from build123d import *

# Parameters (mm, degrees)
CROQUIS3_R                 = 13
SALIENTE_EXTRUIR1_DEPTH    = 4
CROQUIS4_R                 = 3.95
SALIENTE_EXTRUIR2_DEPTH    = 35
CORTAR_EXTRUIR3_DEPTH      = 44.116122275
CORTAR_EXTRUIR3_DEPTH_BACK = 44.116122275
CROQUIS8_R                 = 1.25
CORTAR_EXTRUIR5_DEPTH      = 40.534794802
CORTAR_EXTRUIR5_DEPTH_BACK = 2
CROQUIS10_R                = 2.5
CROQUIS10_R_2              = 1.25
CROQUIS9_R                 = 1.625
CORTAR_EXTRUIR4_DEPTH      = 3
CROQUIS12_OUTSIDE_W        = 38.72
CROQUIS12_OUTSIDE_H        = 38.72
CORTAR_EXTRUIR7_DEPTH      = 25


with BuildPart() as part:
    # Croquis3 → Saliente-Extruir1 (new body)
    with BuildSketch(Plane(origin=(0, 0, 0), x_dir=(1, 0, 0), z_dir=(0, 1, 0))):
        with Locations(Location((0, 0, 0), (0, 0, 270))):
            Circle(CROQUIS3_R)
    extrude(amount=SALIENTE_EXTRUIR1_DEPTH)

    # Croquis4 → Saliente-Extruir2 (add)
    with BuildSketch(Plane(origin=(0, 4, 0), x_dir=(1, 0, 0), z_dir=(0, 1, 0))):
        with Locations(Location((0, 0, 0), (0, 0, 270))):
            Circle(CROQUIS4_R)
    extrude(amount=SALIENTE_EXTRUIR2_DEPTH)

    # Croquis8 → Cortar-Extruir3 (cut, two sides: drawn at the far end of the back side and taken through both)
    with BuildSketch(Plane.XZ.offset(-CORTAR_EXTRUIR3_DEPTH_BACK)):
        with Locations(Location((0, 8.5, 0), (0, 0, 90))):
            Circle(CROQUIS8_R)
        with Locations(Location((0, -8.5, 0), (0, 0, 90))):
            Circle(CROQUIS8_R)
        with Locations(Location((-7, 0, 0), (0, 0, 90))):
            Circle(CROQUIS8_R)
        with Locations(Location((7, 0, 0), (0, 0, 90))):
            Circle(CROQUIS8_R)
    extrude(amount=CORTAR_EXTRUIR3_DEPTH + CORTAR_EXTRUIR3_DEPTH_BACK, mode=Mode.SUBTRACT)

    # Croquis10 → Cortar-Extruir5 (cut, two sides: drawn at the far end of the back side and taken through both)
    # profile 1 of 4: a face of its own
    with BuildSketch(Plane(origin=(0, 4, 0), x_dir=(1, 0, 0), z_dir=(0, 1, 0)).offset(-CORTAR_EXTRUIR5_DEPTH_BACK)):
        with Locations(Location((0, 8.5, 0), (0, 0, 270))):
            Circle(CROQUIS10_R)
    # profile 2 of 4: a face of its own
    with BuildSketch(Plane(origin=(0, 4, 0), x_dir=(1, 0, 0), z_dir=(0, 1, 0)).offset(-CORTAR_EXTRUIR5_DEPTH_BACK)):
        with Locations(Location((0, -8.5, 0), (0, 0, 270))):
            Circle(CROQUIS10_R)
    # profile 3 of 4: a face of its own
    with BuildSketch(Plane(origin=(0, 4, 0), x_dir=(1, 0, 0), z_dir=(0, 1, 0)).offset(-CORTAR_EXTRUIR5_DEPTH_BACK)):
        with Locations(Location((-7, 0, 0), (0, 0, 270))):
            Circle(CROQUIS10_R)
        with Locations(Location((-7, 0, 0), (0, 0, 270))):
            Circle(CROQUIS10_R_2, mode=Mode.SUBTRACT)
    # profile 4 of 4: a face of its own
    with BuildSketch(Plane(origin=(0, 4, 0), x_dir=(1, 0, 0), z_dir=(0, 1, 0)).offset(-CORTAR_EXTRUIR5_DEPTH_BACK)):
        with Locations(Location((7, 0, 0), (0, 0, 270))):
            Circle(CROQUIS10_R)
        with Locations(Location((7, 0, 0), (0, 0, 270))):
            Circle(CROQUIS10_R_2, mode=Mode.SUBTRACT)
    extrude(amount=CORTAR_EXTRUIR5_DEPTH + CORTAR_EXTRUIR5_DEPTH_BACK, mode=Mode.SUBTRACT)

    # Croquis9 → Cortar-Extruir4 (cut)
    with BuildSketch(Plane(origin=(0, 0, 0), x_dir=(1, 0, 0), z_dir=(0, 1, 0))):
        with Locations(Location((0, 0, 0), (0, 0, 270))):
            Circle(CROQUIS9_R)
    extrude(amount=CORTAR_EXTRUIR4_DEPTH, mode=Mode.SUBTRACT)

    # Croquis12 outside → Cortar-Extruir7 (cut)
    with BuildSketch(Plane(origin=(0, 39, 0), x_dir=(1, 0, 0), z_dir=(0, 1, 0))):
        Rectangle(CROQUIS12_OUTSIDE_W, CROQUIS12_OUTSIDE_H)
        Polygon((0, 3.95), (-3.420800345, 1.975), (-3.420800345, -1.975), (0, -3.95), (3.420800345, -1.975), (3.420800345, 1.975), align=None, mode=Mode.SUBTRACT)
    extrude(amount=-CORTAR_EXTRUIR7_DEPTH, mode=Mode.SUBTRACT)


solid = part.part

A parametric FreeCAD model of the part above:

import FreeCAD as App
import Part
import Sketcher
from FreeCAD import Vector
Q = App.Units.Quantity


def add_polygon(sketch, points):
    """Adds a closed chain of lines whose ends are joined by coincident constraints."""
    first, n = sketch.GeometryCount, len(points)
    for a, b in zip(points, points[1:] + points[:1]):
        sketch.addGeometry(Part.LineSegment(App.Vector(*a, 0), App.Vector(*b, 0)), False)
    for i in range(n):
        sketch.addConstraint(Sketcher.Constraint("Coincident", first + i, 2, first + (i + 1) % n, 1))

doc = App.newDocument("Part")
params = doc.addObject("Spreadsheet::Sheet", "Params")
for row, (alias, value) in enumerate([
    ("sketch1_diameter", "26 mm"),
    ("pad1_length", "4 mm"),
    ("sketch2_diameter", "7.9 mm"),
    ("pad2_length", "35 mm"),
    ("sketch3_diameter", "2.5 mm"),
    ("sketch4_diameter", "5 mm"),
    ("sketch4_diameter2", "2.5 mm"),
    ("pocket2_length", "40.534795 mm"),
    ("pocket2_length2", "2 mm"),
    ("sketch5_diameter", "3.25 mm"),
    ("pocket3_length", "3 mm"),
    ("sketch6_width", "38.72 mm"),
    ("sketch6_height", "3.95 mm"),
    ("pocket4_length", "25 mm"),
], start=1):
    params.set(f"A{row}", alias)
    params.set(f"B{row}", "=" + value)
    params.setAlias(f"B{row}", alias)

body = doc.addObject("PartDesign::Body", "Body")

# Sketch on XZ plane
sketch1 = body.newObject("Sketcher::SketchObject", "Sketch")
sketch1.AttachmentSupport = (doc.getObject("XZ_Plane"), [""])
sketch1.MapMode = "FlatFace"
sketch1.addGeometry(Part.Circle(Vector(0, 0, 0), Vector(0, 0, 1), 13), False)
sketch1.addConstraint(Sketcher.Constraint("Coincident", 0, 3, -1, 1))
sketch1.addConstraint(Sketcher.Constraint("Diameter", 0, Q("26 mm")))
sketch1.setExpression("Constraints[1]", "Params.sketch1_diameter")
pad1 = body.newObject("PartDesign::Pad", "Pad")
pad1.Profile = sketch1
pad1.setExpression("Length", "Params.pad1_length")
pad1.Reversed = True

# Sketch on XZ plane
sketch2 = body.newObject("Sketcher::SketchObject", "Sketch001")
sketch2.AttachmentSupport = (doc.getObject("XZ_Plane"), [""])
sketch2.MapMode = "FlatFace"
sketch2.AttachmentOffset = App.Placement(Vector(0, 0, -4), App.Rotation())
sketch2.addGeometry(Part.Circle(Vector(0, 0, 0), Vector(0, 0, 1), 4), False)
sketch2.addConstraint(Sketcher.Constraint("Coincident", 0, 3, -1, 1))
sketch2.addConstraint(Sketcher.Constraint("Diameter", 0, Q("7.9 mm")))
sketch2.setExpression("Constraints[1]", "Params.sketch2_diameter")
pad2 = body.newObject("PartDesign::Pad", "Pad001")
pad2.Profile = sketch2
pad2.setExpression("Length", "Params.pad2_length")
pad2.Reversed = True

# Sketch on XZ plane
sketch3 = body.newObject("Sketcher::SketchObject", "Sketch002")
sketch3.AttachmentSupport = (doc.getObject("XZ_Plane"), [""])
sketch3.MapMode = "FlatFace"
sketch3.addGeometry(Part.Circle(Vector(0, 8.5, 0), Vector(0, 0, 1), 1.2), False)
sketch3.addGeometry(Part.Circle(Vector(0, -8.5, 0), Vector(0, 0, 1), 1.2), False)
sketch3.addGeometry(Part.Circle(Vector(-7, 0, 0), Vector(0, 0, 1), 1.2), False)
sketch3.addGeometry(Part.Circle(Vector(7, 0, 0), Vector(0, 0, 1), 1.2), False)
sketch3.addConstraint(Sketcher.Constraint("Equal", 0, 1))
sketch3.addConstraint(Sketcher.Constraint("Equal", 1, 2))
sketch3.addConstraint(Sketcher.Constraint("Equal", 2, 3))
sketch3.addConstraint(Sketcher.Constraint("Symmetric", 0, 3, 1, 3, -1, 1))
sketch3.addConstraint(Sketcher.Constraint("Symmetric", 2, 3, 3, 3, -1, 1))
sketch3.addConstraint(Sketcher.Constraint("PointOnObject", 0, 3, -2))
sketch3.addConstraint(Sketcher.Constraint("PointOnObject", 2, 3, -1))
sketch3.addConstraint(Sketcher.Constraint("Diameter", 0, Q("2.5 mm")))
sketch3.addConstraint(Sketcher.Constraint("DistanceX", 2, 3, -1, 1, Q("7 mm")))
sketch3.addConstraint(Sketcher.Constraint("DistanceY", 1, 3, 0, 3, Q("17 mm")))
sketch3.setExpression("Constraints[7]", "Params.sketch3_diameter")
pocket1 = body.newObject("PartDesign::Pocket", "Pocket")
pocket1.Profile = sketch3
pocket1.Type = "ThroughAll"
pocket1.Midplane = True

# Sketch on XZ plane
sketch4 = body.newObject("Sketcher::SketchObject", "Sketch003")
sketch4.AttachmentSupport = (doc.getObject("XZ_Plane"), [""])
sketch4.MapMode = "FlatFace"
sketch4.AttachmentOffset = App.Placement(Vector(0, 0, -4), App.Rotation())
sketch4.addGeometry(Part.Circle(Vector(0, -8.5, 0), Vector(0, 0, 1), 2.5), False)
sketch4.addGeometry(Part.Circle(Vector(0, 8.5, 0), Vector(0, 0, 1), 2.5), False)
sketch4.addGeometry(Part.Circle(Vector(-7, 0, 0), Vector(0, 0, 1), 2.5), False)
sketch4.addGeometry(Part.Circle(Vector(-7, 0, 0), Vector(0, 0, 1), 1.2), False)
sketch4.addGeometry(Part.Circle(Vector(7, 0, 0), Vector(0, 0, 1), 2.5), False)
sketch4.addGeometry(Part.Circle(Vector(7, 0, 0), Vector(0, 0, 1), 1.2), False)
sketch4.addConstraint(Sketcher.Constraint("Coincident", 3, 3, 2, 3))
sketch4.addConstraint(Sketcher.Constraint("Coincident", 5, 3, 4, 3))
sketch4.addConstraint(Sketcher.Constraint("Equal", 0, 1))
sketch4.addConstraint(Sketcher.Constraint("Equal", 1, 2))
sketch4.addConstraint(Sketcher.Constraint("Equal", 2, 4))
sketch4.addConstraint(Sketcher.Constraint("Equal", 3, 5))
sketch4.addConstraint(Sketcher.Constraint("Symmetric", 0, 3, 1, 3, -1, 1))
sketch4.addConstraint(Sketcher.Constraint("Symmetric", 2, 3, 4, 3, -1, 1))
sketch4.addConstraint(Sketcher.Constraint("PointOnObject", 0, 3, -2))
sketch4.addConstraint(Sketcher.Constraint("PointOnObject", 2, 3, -1))
sketch4.addConstraint(Sketcher.Constraint("Diameter", 0, Q("5 mm")))
sketch4.addConstraint(Sketcher.Constraint("Diameter", 3, Q("2.5 mm")))
sketch4.addConstraint(Sketcher.Constraint("DistanceX", 2, 3, -1, 1, Q("7 mm")))
sketch4.addConstraint(Sketcher.Constraint("DistanceY", 0, 3, 1, 3, Q("17 mm")))
sketch4.setExpression("Constraints[10]", "Params.sketch4_diameter")
sketch4.setExpression("Constraints[11]", "Params.sketch4_diameter2")
pocket2 = body.newObject("PartDesign::Pocket", "Pocket001")
pocket2.Profile = sketch4
pocket2.Type = "TwoLengths"
pocket2.setExpression("Length", "Params.pocket2_length")
pocket2.setExpression("Length2", "Params.pocket2_length2")

# Sketch on XZ plane
sketch5 = body.newObject("Sketcher::SketchObject", "Sketch004")
sketch5.AttachmentSupport = (doc.getObject("XZ_Plane"), [""])
sketch5.MapMode = "FlatFace"
sketch5.addGeometry(Part.Circle(Vector(0, 0, 0), Vector(0, 0, 1), 1.6), False)
sketch5.addConstraint(Sketcher.Constraint("Coincident", 0, 3, -1, 1))
sketch5.addConstraint(Sketcher.Constraint("Diameter", 0, Q("3.25 mm")))
sketch5.setExpression("Constraints[1]", "Params.sketch5_diameter")
pocket3 = body.newObject("PartDesign::Pocket", "Pocket002")
pocket3.Profile = sketch5
pocket3.setExpression("Length", "Params.pocket3_length")

# Sketch on XZ plane
sketch6 = body.newObject("Sketcher::SketchObject", "Sketch005")
sketch6.AttachmentSupport = (doc.getObject("XZ_Plane"), [""])
sketch6.MapMode = "FlatFace"
sketch6.AttachmentOffset = App.Placement(Vector(0, 0, -39), App.Rotation())
add_polygon(sketch6, [(-19.4, -19.4), (-19.4, 19.4), (19.4, 19.4), (19.4, -19.4)])  # lines 0-3
add_polygon(sketch6, [(-3.4, -2), (0, -4), (3.4, -2), (3.4, 2), (0, 4), (-3.4, 2)])  # lines 4-9
sketch6.addConstraint(Sketcher.Constraint("Vertical", 0))
sketch6.addConstraint(Sketcher.Constraint("Horizontal", 1))
sketch6.addConstraint(Sketcher.Constraint("Vertical", 2))
sketch6.addConstraint(Sketcher.Constraint("Horizontal", 3))
sketch6.addConstraint(Sketcher.Constraint("Vertical", 6))
sketch6.addConstraint(Sketcher.Constraint("Vertical", 9))
sketch6.addConstraint(Sketcher.Constraint("Symmetric", 0, 2, 2, 2, -1, 1))
sketch6.addConstraint(Sketcher.Constraint("Symmetric", 4, 2, 7, 2, -1, 1))
sketch6.addConstraint(Sketcher.Constraint("Symmetric", 5, 2, 8, 2, -1, 1))
sketch6.addConstraint(Sketcher.Constraint("PointOnObject", 4, 2, -2))
sketch6.addConstraint(Sketcher.Constraint("Parallel", 4, 7))
sketch6.addConstraint(Sketcher.Constraint("Horizontal", 6, 2, 8, 2))
sketch6.addConstraint(Sketcher.Constraint("Equal", 3, 0))
sketch6.addConstraint(Sketcher.Constraint("Angle", 4, Q("-30 deg")))
sketch6.addConstraint(Sketcher.Constraint("DistanceX", 1, 1, 1, 2, Q("38.72 mm")))
sketch6.addConstraint(Sketcher.Constraint("DistanceY", 6, 1, 6, 2, Q("3.95 mm")))
sketch6.addConstraint(Sketcher.Constraint("DistanceY", 4, 2, 7, 2, Q("7.9 mm")))
sketch6.setExpression("Constraints[24]", "Params.sketch6_width")
sketch6.setExpression("Constraints[25]", "Params.sketch6_height")
pocket4 = body.newObject("PartDesign::Pocket", "Pocket003")
pocket4.Profile = sketch6
pocket4.setExpression("Length", "Params.pocket4_length")
pocket4.Reversed = True

doc.recompute()
